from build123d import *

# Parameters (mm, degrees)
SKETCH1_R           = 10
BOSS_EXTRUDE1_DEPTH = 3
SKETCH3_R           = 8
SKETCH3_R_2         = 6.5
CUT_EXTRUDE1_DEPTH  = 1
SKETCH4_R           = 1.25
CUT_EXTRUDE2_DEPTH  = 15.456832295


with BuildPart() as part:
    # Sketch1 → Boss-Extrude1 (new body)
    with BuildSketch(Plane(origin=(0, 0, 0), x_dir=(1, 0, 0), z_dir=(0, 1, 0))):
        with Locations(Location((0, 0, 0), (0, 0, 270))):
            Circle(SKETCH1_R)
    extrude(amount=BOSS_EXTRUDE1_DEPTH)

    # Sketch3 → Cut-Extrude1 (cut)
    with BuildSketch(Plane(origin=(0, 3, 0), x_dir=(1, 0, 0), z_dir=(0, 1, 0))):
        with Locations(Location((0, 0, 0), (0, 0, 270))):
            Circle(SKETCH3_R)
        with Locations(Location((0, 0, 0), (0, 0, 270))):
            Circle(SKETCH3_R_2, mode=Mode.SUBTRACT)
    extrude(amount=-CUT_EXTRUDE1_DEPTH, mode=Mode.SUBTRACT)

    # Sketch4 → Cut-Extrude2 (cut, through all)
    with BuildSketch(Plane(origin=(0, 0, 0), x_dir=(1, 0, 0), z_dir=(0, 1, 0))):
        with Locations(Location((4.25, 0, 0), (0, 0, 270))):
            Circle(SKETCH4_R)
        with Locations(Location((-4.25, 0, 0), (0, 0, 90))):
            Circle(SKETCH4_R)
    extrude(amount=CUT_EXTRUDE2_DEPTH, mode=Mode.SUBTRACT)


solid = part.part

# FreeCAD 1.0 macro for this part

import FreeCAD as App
import Part
import Sketcher
from FreeCAD import Vector

doc = App.newDocument("Part")
body = doc.addObject("PartDesign::Body", "Body")

# Sketch on XZ plane
sketch1 = body.newObject("Sketcher::SketchObject", "Sketch")
sketch1.AttachmentSupport = (doc.getObject("XZ_Plane"), [""])
sketch1.MapMode = "FlatFace"
sketch1.addGeometry(Part.Circle(Vector(0, 0, 0), Vector(0, 0, 1), 10), False)
sketch1.addConstraint([
    Sketcher.Constraint("Coincident", 0, 3, -1, 1),
    Sketcher.Constraint("Diameter", 0, 20.0),
])
pad1 = body.newObject("PartDesign::Pad", "Pad")
pad1.Profile = sketch1
pad1.Length = 3
pad1.Reversed = True

# Sketch on XZ plane
sketch2 = body.newObject("Sketcher::SketchObject", "Sketch001")
sketch2.AttachmentSupport = (doc.getObject("XZ_Plane"), [""])
sketch2.MapMode = "FlatFace"
sketch2.AttachmentOffset = App.Placement(Vector(0, 0, -3), App.Rotation())
sketch2.addGeometry([
    Part.Circle(Vector(0, 0, 0), Vector(0, 0, 1), 8),
    Part.Circle(Vector(0, 0, 0), Vector(0, 0, 1), 6),
], False)
sketch2.addConstraint([
    Sketcher.Constraint("Coincident", 0, 3, -1, 1),
    Sketcher.Constraint("Coincident", 1, 3, -1, 1),
    Sketcher.Constraint("Diameter", 0, 16.0),
    Sketcher.Constraint("Diameter", 1, 13.0),
])
pocket1 = body.newObject("PartDesign::Pocket", "Pocket")
pocket1.Profile = sketch2
pocket1.Length = 1
pocket1.Reversed = True

# Sketch on XZ plane
sketch3 = body.newObject("Sketcher::SketchObject", "Sketch002")
sketch3.AttachmentSupport = (doc.getObject("XZ_Plane"), [""])
sketch3.MapMode = "FlatFace"
sketch3.addGeometry([
    Part.Circle(Vector(4.2, 0, 0), Vector(0, 0, 1), 1.2),
    Part.Circle(Vector(-4.2, 0, 0), Vector(0, 0, 1), 1.2),
], False)
sketch3.addConstraint([
    Sketcher.Constraint("Equal", 0, 1),
    Sketcher.Constraint("Symmetric", 0, 3, 1, 3, -1, 1),
    Sketcher.Constraint("PointOnObject", 0, 3, -1),
    Sketcher.Constraint("Diameter", 0, 2.5),
    Sketcher.Constraint("DistanceX", 1, 3, 0, 3, 8.5),
])
pocket2 = body.newObject("PartDesign::Pocket", "Pocket001")
pocket2.Profile = sketch3
pocket2.Type = "ThroughAll"

doc.recompute()
